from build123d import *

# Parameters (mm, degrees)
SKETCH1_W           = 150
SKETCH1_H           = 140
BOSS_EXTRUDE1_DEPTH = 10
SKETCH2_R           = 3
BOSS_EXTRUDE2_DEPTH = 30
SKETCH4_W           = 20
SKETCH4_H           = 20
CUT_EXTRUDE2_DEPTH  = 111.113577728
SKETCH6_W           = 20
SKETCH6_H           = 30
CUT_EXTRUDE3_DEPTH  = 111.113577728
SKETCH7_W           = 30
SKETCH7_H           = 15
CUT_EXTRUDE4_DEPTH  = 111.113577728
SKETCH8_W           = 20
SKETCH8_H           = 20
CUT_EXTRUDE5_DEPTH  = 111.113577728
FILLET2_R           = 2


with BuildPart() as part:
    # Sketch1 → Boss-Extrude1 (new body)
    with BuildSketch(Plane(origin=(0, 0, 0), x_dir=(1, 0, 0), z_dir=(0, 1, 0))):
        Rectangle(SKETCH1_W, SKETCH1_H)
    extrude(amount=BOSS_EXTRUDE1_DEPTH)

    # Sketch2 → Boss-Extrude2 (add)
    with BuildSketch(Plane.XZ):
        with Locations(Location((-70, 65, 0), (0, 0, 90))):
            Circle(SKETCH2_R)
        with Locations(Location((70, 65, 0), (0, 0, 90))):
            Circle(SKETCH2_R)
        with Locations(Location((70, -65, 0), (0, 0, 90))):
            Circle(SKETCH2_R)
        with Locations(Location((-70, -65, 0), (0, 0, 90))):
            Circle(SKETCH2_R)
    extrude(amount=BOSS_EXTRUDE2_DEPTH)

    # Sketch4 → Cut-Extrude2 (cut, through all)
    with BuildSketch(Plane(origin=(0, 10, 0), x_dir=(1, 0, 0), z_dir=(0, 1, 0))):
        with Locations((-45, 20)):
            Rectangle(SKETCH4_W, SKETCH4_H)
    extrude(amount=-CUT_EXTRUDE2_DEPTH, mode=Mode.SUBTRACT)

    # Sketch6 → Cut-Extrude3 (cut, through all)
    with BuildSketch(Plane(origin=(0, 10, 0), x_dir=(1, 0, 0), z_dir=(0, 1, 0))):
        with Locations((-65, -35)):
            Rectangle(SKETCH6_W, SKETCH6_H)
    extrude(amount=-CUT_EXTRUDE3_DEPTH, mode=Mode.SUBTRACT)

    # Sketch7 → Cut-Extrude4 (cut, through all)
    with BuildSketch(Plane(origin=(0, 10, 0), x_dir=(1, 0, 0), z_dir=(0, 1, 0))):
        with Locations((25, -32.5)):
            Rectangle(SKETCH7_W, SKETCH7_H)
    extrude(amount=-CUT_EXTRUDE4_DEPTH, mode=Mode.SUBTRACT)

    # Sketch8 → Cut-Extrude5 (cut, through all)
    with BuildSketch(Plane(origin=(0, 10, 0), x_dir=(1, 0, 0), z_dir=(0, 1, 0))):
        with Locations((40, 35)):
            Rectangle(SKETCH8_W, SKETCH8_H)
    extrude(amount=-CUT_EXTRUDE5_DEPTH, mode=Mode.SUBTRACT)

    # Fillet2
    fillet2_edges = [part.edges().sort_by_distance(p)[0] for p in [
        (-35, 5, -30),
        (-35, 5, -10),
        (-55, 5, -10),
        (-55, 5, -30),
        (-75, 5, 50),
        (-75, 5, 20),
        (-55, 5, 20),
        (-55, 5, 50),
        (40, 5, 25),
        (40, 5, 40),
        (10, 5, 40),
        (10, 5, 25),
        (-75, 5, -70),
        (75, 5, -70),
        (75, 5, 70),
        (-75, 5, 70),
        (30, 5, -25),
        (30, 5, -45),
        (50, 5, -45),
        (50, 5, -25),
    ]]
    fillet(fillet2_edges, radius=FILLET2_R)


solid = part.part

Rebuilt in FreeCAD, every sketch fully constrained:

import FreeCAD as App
import Part
import Sketcher
from FreeCAD import Vector
Q = App.Units.Quantity


def edges_at(feature, points):
    """Names of the edges that pass closest to the given points."""
    edges = feature.Shape.Edges
    near = lambda p: min(range(len(edges)), key=lambda i: edges[i].distToShape(Part.Vertex(*p))[0])
    return sorted({f"Edge{near(p) + 1}" for p in points})

doc = App.newDocument("Part")
body = doc.addObject("PartDesign::Body", "Body")

# Sketch on XZ plane
sketch1 = body.newObject("Sketcher::SketchObject", "Sketch")
sketch1.AttachmentSupport = (doc.getObject("XZ_Plane"), [""])
sketch1.MapMode = "FlatFace"
sketch1.addGeometry(Part.LineSegment(Vector(-75, -70, 0), Vector(-75, 70, 0)), False)
sketch1.addGeometry(Part.LineSegment(Vector(-75, 70, 0), Vector(75, 70, 0)), False)
sketch1.addGeometry(Part.LineSegment(Vector(75, 70, 0), Vector(75, -70, 0)), False)
sketch1.addGeometry(Part.LineSegment(Vector(75, -70, 0), Vector(-75, -70, 0)), False)
sketch1.addConstraint(Sketcher.Constraint("Coincident", 0, 2, 1, 1))
sketch1.addConstraint(Sketcher.Constraint("Coincident", 1, 2, 2, 1))
sketch1.addConstraint(Sketcher.Constraint("Coincident", 2, 2, 3, 1))
sketch1.addConstraint(Sketcher.Constraint("Coincident", 3, 2, 0, 1))
sketch1.addConstraint(Sketcher.Constraint("Vertical", 0))
sketch1.addConstraint(Sketcher.Constraint("Horizontal", 1))
sketch1.addConstraint(Sketcher.Constraint("Vertical", 2))
sketch1.addConstraint(Sketcher.Constraint("Horizontal", 3))
sketch1.addConstraint(Sketcher.Constraint("Symmetric", 0, 2, 2, 2, -1, 1))
sketch1.addConstraint(Sketcher.Constraint("DistanceX", 1, 1, 1, 2, Q("150 mm")))
sketch1.addConstraint(Sketcher.Constraint("DistanceY", 0, 1, 0, 2, Q("140 mm")))
pad1 = body.newObject("PartDesign::Pad", "Pad")
pad1.Profile = sketch1
pad1.Length = 10
pad1.Reversed = True

# Sketch on XZ plane
sketch2 = body.newObject("Sketcher::SketchObject", "Sketch001")
sketch2.AttachmentSupport = (doc.getObject("XZ_Plane"), [""])
sketch2.MapMode = "FlatFace"
sketch2.addGeometry(Part.Circle(Vector(-70, 65, 0), Vector(0, 0, 1), 3), False)
sketch2.addGeometry(Part.Circle(Vector(70, 65, 0), Vector(0, 0, 1), 3), False)
sketch2.addGeometry(Part.Circle(Vector(70, -65, 0), Vector(0, 0, 1), 3), False)
sketch2.addGeometry(Part.Circle(Vector(-70, -65, 0), Vector(0, 0, 1), 3), False)
sketch2.addConstraint(Sketcher.Constraint("Equal", 0, 1))
sketch2.addConstraint(Sketcher.Constraint("Equal", 1, 2))
sketch2.addConstraint(Sketcher.Constraint("Equal", 2, 3))
sketch2.addConstraint(Sketcher.Constraint("Symmetric", 0, 3, 2, 3, -1, 1))
sketch2.addConstraint(Sketcher.Constraint("Symmetric", 1, 3, 3, 3, -1, 1))
sketch2.addConstraint(Sketcher.Constraint("Symmetric", 0, 3, 1, 3, -2))
sketch2.addConstraint(Sketcher.Constraint("Diameter", 0, Q("6 mm")))
sketch2.addConstraint(Sketcher.Constraint("DistanceX", 0, 3, -1, 1, Q("70 mm")))
sketch2.addConstraint(Sketcher.Constraint("DistanceY", -1, 1, 0, 3, Q("65 mm")))
pad2 = body.newObject("PartDesign::Pad", "Pad001")
pad2.Profile = sketch2
pad2.Length = 30

# Sketch on XZ plane
sketch3 = body.newObject("Sketcher::SketchObject", "Sketch002")
sketch3.AttachmentSupport = (doc.getObject("XZ_Plane"), [""])
sketch3.MapMode = "FlatFace"
sketch3.AttachmentOffset = App.Placement(Vector(0, 0, -10), App.Rotation())
sketch3.addGeometry(Part.LineSegment(Vector(-55, -30, 0), Vector(-55, -10, 0)), False)
sketch3.addGeometry(Part.LineSegment(Vector(-55, -10, 0), Vector(-35, -10, 0)), False)
sketch3.addGeometry(Part.LineSegment(Vector(-35, -10, 0), Vector(-35, -30, 0)), False)
sketch3.addGeometry(Part.LineSegment(Vector(-35, -30, 0), Vector(-55, -30, 0)), False)
sketch3.addConstraint(Sketcher.Constraint("Coincident", 0, 2, 1, 1))
sketch3.addConstraint(Sketcher.Constraint("Coincident", 1, 2, 2, 1))
sketch3.addConstraint(Sketcher.Constraint("Coincident", 2, 2, 3, 1))
sketch3.addConstraint(Sketcher.Constraint("Coincident", 3, 2, 0, 1))
sketch3.addConstraint(Sketcher.Constraint("Vertical", 0))
sketch3.addConstraint(Sketcher.Constraint("Horizontal", 1))
sketch3.addConstraint(Sketcher.Constraint("Vertical", 2))
sketch3.addConstraint(Sketcher.Constraint("Horizontal", 3))
sketch3.addConstraint(Sketcher.Constraint("Equal", 3, 0))
sketch3.addConstraint(Sketcher.Constraint("DistanceX", 1, 1, 1, 2, Q("20 mm")))
sketch3.addConstraint(Sketcher.Constraint("DistanceX", 0, 2, -1, 1, Q("55 mm")))
sketch3.addConstraint(Sketcher.Constraint("DistanceY", 0, 2, -1, 1, Q("10 mm")))
pocket1 = body.newObject("PartDesign::Pocket", "Pocket")
pocket1.Profile = sketch3
pocket1.Type = "ThroughAll"
pocket1.Reversed = True

# Sketch on XZ plane
sketch4 = body.newObject("Sketcher::SketchObject", "Sketch003")
sketch4.AttachmentSupport = (doc.getObject("XZ_Plane"), [""])
sketch4.MapMode = "FlatFace"
sketch4.AttachmentOffset = App.Placement(Vector(0, 0, -10), App.Rotation())
sketch4.addGeometry(Part.LineSegment(Vector(-75, 20, 0), Vector(-75, 50, 0)), False)
sketch4.addGeometry(Part.LineSegment(Vector(-75, 50, 0), Vector(-55, 50, 0)), False)
sketch4.addGeometry(Part.LineSegment(Vector(-55, 50, 0), Vector(-55, 20, 0)), False)
sketch4.addGeometry(Part.LineSegment(Vector(-55, 20, 0), Vector(-75, 20, 0)), False)
sketch4.addConstraint(Sketcher.Constraint("Coincident", 0, 2, 1, 1))
sketch4.addConstraint(Sketcher.Constraint("Coincident", 1, 2, 2, 1))
sketch4.addConstraint(Sketcher.Constraint("Coincident", 2, 2, 3, 1))
sketch4.addConstraint(Sketcher.Constraint("Coincident", 3, 2, 0, 1))
sketch4.addConstraint(Sketcher.Constraint("Vertical", 0))
sketch4.addConstraint(Sketcher.Constraint("Horizontal", 1))
sketch4.addConstraint(Sketcher.Constraint("Vertical", 2))
sketch4.addConstraint(Sketcher.Constraint("Horizontal", 3))
sketch4.addConstraint(Sketcher.Constraint("DistanceX", 1, 1, 1, 2, Q("20 mm")))
sketch4.addConstraint(Sketcher.Constraint("DistanceY", 0, 1, 0, 2, Q("30 mm")))
sketch4.addConstraint(Sketcher.Constraint("DistanceX", 0, 2, -1, 1, Q("75 mm")))
sketch4.addConstraint(Sketcher.Constraint("DistanceY", -1, 1, 0, 2, Q("50 mm")))
pocket2 = body.newObject("PartDesign::Pocket", "Pocket001")
pocket2.Profile = sketch4
pocket2.Type = "ThroughAll"
pocket2.Reversed = True

# Sketch on XZ plane
sketch5 = body.newObject("Sketcher::SketchObject", "Sketch004")
sketch5.AttachmentSupport = (doc.getObject("XZ_Plane"), [""])
sketch5.MapMode = "FlatFace"
sketch5.AttachmentOffset = App.Placement(Vector(0, 0, -10), App.Rotation())
sketch5.addGeometry(Part.LineSegment(Vector(10, 25, 0), Vector(10, 40, 0)), False)
sketch5.addGeometry(Part.LineSegment(Vector(10, 40, 0), Vector(40, 40, 0)), False)
sketch5.addGeometry(Part.LineSegment(Vector(40, 40, 0), Vector(40, 25, 0)), False)
sketch5.addGeometry(Part.LineSegment(Vector(40, 25, 0), Vector(10, 25, 0)), False)
sketch5.addConstraint(Sketcher.Constraint("Coincident", 0, 2, 1, 1))
sketch5.addConstraint(Sketcher.Constraint("Coincident", 1, 2, 2, 1))
sketch5.addConstraint(Sketcher.Constraint("Coincident", 2, 2, 3, 1))
sketch5.addConstraint(Sketcher.Constraint("Coincident", 3, 2, 0, 1))
sketch5.addConstraint(Sketcher.Constraint("Vertical", 0))
sketch5.addConstraint(Sketcher.Constraint("Horizontal", 1))
sketch5.addConstraint(Sketcher.Constraint("Vertical", 2))
sketch5.addConstraint(Sketcher.Constraint("Horizontal", 3))
sketch5.addConstraint(Sketcher.Constraint("DistanceX", 1, 1, 1, 2, Q("30 mm")))
sketch5.addConstraint(Sketcher.Constraint("DistanceY", 0, 1, 0, 2, Q("15 mm")))
sketch5.addConstraint(Sketcher.Constraint("DistanceX", -1, 1, 0, 2, Q("10 mm")))
sketch5.addConstraint(Sketcher.Constraint("DistanceY", -1, 1, 0, 2, Q("40 mm")))
pocket3 = body.newObject("PartDesign::Pocket", "Pocket002")
pocket3.Profile = sketch5
pocket3.Type = "ThroughAll"
pocket3.Reversed = True

# Sketch on XZ plane
sketch6 = body.newObject("Sketcher::SketchObject", "Sketch005")
sketch6.AttachmentSupport = (doc.getObject("XZ_Plane"), [""])
sketch6.MapMode = "FlatFace"
sketch6.AttachmentOffset = App.Placement(Vector(0, 0, -10), App.Rotation())
sketch6.addGeometry(Part.LineSegment(Vector(30, -45, 0), Vector(30, -25, 0)), False)
sketch6.addGeometry(Part.LineSegment(Vector(30, -25, 0), Vector(50, -25, 0)), False)
sketch6.addGeometry(Part.LineSegment(Vector(50, -25, 0), Vector(50, -45, 0)), False)
sketch6.addGeometry(Part.LineSegment(Vector(50, -45, 0), Vector(30, -45, 0)), False)
sketch6.addConstraint(Sketcher.Constraint("Coincident", 0, 2, 1, 1))
sketch6.addConstraint(Sketcher.Constraint("Coincident", 1, 2, 2, 1))
sketch6.addConstraint(Sketcher.Constraint("Coincident", 2, 2, 3, 1))
sketch6.addConstraint(Sketcher.Constraint("Coincident", 3, 2, 0, 1))
sketch6.addConstraint(Sketcher.Constraint("Vertical", 0))
sketch6.addConstraint(Sketcher.Constraint("Horizontal", 1))
sketch6.addConstraint(Sketcher.Constraint("Vertical", 2))
sketch6.addConstraint(Sketcher.Constraint("Horizontal", 3))
sketch6.addConstraint(Sketcher.Constraint("Equal", 3, 0))
sketch6.addConstraint(Sketcher.Constraint("DistanceX", 1, 1, 1, 2, Q("20 mm")))
sketch6.addConstraint(Sketcher.Constraint("DistanceX", -1, 1, 0, 2, Q("30 mm")))
sketch6.addConstraint(Sketcher.Constraint("DistanceY", 0, 2, -1, 1, Q("25 mm")))
pocket4 = body.newObject("PartDesign::Pocket", "Pocket003")
pocket4.Profile = sketch6
pocket4.Type = "ThroughAll"
pocket4.Reversed = True
doc.recompute()

fillet = body.newObject("PartDesign::Fillet", "Fillet")
fillet.Base = (pocket4, edges_at(pocket4, [
    (-35, 5, -30),
    (-35, 5, -10),
    (-55, 5, -10),
    (-55, 5, -30),
    (-75, 5, 50),
    (-75, 5, 20),
    (-55, 5, 20),
    (-55, 5, 50),
    (40, 5, 25),
    (40, 5, 40),
    (10, 5, 40),
    (10, 5, 25),
    (-75, 5, -70),
    (75, 5, -70),
    (75, 5, 70),
    (-75, 5, 70),
    (30, 5, -25),
    (30, 5, -45),
    (50, 5, -45),
    (50, 5, -25),
]))
fillet.Radius = 2

doc.recompute()
